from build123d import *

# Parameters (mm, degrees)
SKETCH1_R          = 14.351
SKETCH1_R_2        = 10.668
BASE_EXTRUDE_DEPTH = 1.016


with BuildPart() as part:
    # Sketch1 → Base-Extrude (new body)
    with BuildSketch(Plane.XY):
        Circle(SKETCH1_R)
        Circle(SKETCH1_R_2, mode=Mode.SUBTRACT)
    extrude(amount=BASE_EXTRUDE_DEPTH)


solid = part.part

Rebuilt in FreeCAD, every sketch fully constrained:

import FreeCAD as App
import Part
import Sketcher
Q = App.Units.Quantity

doc = App.newDocument("Part")
params = doc.addObject("Spreadsheet::Sheet", "Params")
for row, (alias, value) in enumerate([
    ("sketch1_diameter", "1.13 in"),
    ("sketch1_diameter2", "0.84 in"),
    ("pad1_length", "0.04 in"),
], start=1):
    params.set(f"A{row}", alias)
    params.set(f"B{row}", "=" + value)
    params.setAlias(f"B{row}", alias)

body = doc.addObject("PartDesign::Body", "Body")

# Sketch on XY plane
sketch1 = body.newObject("Sketcher::SketchObject", "Sketch")
sketch1.AttachmentSupport = (doc.getObject("XY_Plane"), [""])
sketch1.MapMode = "FlatFace"
sketch1.addGeometry([
    Part.Circle(App.Vector(0, 0, 0), App.Vector(0, 0, 1), 14),
    Part.Circle(App.Vector(0, 0, 0), App.Vector(0, 0, 1), 11),
], False)
sketch1.addConstraint([
    Sketcher.Constraint("Coincident", 0, 3, -1, 1),
    Sketcher.Constraint("Coincident", 1, 3, -1, 1),
    Sketcher.Constraint("Diameter", 0, Q("1.13 in")),
    Sketcher.Constraint("Diameter", 1, Q("0.84 in")),
])
sketch1.setExpression("Constraints[2]", "Params.sketch1_diameter")
sketch1.setExpression("Constraints[3]", "Params.sketch1_diameter2")
pad1 = body.newObject("PartDesign::Pad", "Pad")
pad1.Profile = sketch1
pad1.setExpression("Length", "Params.pad1_length")

doc.recompute()
